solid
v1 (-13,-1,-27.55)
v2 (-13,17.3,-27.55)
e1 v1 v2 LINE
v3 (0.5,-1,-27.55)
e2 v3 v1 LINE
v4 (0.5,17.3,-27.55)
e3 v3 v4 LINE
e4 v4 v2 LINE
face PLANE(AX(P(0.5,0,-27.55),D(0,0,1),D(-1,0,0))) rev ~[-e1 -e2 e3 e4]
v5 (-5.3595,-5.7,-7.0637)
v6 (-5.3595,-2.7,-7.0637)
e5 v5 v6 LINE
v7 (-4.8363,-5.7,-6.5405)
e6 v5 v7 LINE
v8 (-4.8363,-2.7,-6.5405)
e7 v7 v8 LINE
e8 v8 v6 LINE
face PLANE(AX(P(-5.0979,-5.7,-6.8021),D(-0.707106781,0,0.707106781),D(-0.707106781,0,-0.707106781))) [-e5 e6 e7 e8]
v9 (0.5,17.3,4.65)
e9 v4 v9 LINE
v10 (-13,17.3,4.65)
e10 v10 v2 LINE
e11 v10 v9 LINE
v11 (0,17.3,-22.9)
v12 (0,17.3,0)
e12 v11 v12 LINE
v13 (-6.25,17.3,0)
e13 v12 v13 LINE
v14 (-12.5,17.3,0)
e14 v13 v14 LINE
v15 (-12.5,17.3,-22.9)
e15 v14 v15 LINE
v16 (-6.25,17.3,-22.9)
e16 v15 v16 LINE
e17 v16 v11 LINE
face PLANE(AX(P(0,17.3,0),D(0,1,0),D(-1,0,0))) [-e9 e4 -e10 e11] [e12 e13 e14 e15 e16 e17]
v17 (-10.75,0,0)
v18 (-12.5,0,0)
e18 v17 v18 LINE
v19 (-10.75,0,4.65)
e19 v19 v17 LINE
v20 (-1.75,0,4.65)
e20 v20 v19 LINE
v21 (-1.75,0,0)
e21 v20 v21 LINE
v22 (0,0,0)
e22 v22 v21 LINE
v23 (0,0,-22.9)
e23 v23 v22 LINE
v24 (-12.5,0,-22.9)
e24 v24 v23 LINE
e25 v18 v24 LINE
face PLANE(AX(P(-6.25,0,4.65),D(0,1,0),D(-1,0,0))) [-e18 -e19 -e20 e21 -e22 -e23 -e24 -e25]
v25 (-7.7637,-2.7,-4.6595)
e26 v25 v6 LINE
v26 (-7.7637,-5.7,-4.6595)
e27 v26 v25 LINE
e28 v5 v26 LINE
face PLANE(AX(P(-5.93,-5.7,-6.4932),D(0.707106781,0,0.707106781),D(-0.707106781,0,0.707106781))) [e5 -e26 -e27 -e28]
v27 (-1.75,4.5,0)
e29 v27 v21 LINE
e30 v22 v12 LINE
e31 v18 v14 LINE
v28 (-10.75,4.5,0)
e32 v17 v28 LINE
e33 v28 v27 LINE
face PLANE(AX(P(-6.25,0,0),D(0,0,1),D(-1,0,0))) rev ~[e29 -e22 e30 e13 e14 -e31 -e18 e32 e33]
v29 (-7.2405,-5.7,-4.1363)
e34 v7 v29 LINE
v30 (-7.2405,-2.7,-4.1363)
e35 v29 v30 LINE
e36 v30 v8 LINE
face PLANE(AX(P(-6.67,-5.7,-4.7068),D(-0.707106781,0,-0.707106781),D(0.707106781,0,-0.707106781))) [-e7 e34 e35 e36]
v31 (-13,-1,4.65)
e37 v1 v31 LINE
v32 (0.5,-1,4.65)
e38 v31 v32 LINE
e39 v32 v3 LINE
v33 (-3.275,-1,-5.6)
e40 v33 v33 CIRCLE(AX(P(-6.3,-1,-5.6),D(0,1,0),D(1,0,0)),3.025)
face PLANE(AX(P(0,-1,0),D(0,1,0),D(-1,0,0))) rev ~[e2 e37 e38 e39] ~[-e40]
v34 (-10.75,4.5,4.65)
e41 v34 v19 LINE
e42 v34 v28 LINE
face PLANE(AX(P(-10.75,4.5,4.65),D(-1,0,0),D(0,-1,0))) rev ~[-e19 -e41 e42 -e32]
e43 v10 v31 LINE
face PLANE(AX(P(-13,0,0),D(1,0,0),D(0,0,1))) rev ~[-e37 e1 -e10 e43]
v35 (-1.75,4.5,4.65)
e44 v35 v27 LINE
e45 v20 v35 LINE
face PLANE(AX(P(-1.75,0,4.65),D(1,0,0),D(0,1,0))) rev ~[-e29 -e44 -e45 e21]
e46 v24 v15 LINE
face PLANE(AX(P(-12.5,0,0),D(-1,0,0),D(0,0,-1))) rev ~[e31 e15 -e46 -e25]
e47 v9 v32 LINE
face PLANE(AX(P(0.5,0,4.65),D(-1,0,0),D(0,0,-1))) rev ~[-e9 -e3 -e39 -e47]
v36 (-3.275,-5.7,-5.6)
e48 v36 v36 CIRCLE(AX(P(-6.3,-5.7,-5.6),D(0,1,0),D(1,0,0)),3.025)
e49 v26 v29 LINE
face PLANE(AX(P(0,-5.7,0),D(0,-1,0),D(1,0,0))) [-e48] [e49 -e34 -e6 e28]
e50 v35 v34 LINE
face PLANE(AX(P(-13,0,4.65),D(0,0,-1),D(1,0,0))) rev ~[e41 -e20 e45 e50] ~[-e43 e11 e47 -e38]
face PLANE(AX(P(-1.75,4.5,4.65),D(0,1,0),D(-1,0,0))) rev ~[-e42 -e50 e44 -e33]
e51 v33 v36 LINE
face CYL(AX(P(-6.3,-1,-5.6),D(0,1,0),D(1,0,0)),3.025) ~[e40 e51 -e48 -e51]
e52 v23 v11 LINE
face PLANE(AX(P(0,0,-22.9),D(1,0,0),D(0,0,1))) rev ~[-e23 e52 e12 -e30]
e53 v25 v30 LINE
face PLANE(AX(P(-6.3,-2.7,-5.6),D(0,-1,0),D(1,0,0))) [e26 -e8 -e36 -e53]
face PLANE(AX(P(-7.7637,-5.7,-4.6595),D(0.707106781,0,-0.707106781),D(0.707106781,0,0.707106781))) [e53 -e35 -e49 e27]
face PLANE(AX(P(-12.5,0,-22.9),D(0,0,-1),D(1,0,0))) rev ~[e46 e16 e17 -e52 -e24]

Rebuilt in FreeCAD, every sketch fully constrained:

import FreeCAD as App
import Part
import Sketcher
from FreeCAD import Vector
Q = App.Units.Quantity

doc = App.newDocument("Part")
body = doc.addObject("PartDesign::Body", "Body")

# Sketch on XZ plane
sketch1 = doc.addObject("Sketcher::SketchObject", "Sketch")
body.addObject(sketch1)
sketch1.AttachmentSupport = (doc.XZ_Plane, [""])
sketch1.MapMode = "FlatFace"
sketch1.addGeometry(Part.LineSegment(Vector(0, 5, 0), Vector(0, -28, 0)), False)
sketch1.addGeometry(Part.LineSegment(Vector(0, -28, 0), Vector(-13, -28, 0)), False)
sketch1.addGeometry(Part.LineSegment(Vector(-13, -28, 0), Vector(-13, 5, 0)), False)
sketch1.addGeometry(Part.LineSegment(Vector(-13, 5, 0), Vector(0, 5, 0)), False)
sketch1.addGeometry(Part.LineSegment(Vector(0, -23, 0), Vector(0, 0, 0)), False)
sketch1.addGeometry(Part.LineSegment(Vector(0, 0, 0), Vector(-6, 0, 0)), False)
sketch1.addGeometry(Part.LineSegment(Vector(-6, 0, 0), Vector(-12, 0, 0)), False)
sketch1.addGeometry(Part.LineSegment(Vector(-12, 0, 0), Vector(-12, -23, 0)), False)
sketch1.addGeometry(Part.LineSegment(Vector(-12, -23, 0), Vector(-6, -23, 0)), False)
sketch1.addGeometry(Part.LineSegment(Vector(-6, -23, 0), Vector(0, -23, 0)), False)
sketch1.addConstraint(Sketcher.Constraint("Coincident", 0, 2, 1, 1))
sketch1.addConstraint(Sketcher.Constraint("Coincident", 1, 2, 2, 1))
sketch1.addConstraint(Sketcher.Constraint("Coincident", 2, 2, 3, 1))
sketch1.addConstraint(Sketcher.Constraint("Coincident", 3, 2, 0, 1))
sketch1.addConstraint(Sketcher.Constraint("Coincident", 4, 2, 5, 1))
sketch1.addConstraint(Sketcher.Constraint("Coincident", 5, 2, 6, 1))
sketch1.addConstraint(Sketcher.Constraint("Coincident", 6, 2, 7, 1))
sketch1.addConstraint(Sketcher.Constraint("Coincident", 7, 2, 8, 1))
sketch1.addConstraint(Sketcher.Constraint("Coincident", 8, 2, 9, 1))
sketch1.addConstraint(Sketcher.Constraint("Coincident", 9, 2, 4, 1))
sketch1.addConstraint(Sketcher.Constraint("Vertical", 0))
sketch1.addConstraint(Sketcher.Constraint("Horizontal", 1))
sketch1.addConstraint(Sketcher.Constraint("Vertical", 2))
sketch1.addConstraint(Sketcher.Constraint("Horizontal", 3))
sketch1.addConstraint(Sketcher.Constraint("Vertical", 4))
sketch1.addConstraint(Sketcher.Constraint("Horizontal", 5))
sketch1.addConstraint(Sketcher.Constraint("Horizontal", 6))
sketch1.addConstraint(Sketcher.Constraint("Vertical", 7))
sketch1.addConstraint(Sketcher.Constraint("Horizontal", 8))
sketch1.addConstraint(Sketcher.Constraint("Horizontal", 9))
sketch1.addConstraint(Sketcher.Constraint("Coincident", 4, 2, -1, 1))
sketch1.addConstraint(Sketcher.Constraint("Vertical", 5, 2, 8, 2))
sketch1.addConstraint(Sketcher.Constraint("Equal", 5, 6))
sketch1.addConstraint(Sketcher.Constraint("DistanceY", 4, 1, 4, 2, Q("22.9 mm")))
sketch1.addConstraint(Sketcher.Constraint("DistanceX", -1, 1, 0, 2, Q("0.5 mm")))
sketch1.addConstraint(Sketcher.Constraint("DistanceX", 6, 2, -1, 1, Q("12.5 mm")))
sketch1.addConstraint(Sketcher.Constraint("DistanceX", 2, 2, 6, 2, Q("0.5 mm")))
sketch1.addConstraint(Sketcher.Constraint("DistanceY", -1, 1, 2, 2, Q("4.65 mm")))
sketch1.addConstraint(Sketcher.Constraint("DistanceY", 1, 2, 7, 2, Q("4.65 mm")))
pad1 = doc.addObject("PartDesign::Pad", "Pad")
body.addObject(pad1)
pad1.Profile = sketch1
pad1.Length = 17.3
pad1.Reversed = True

# Sketch on XZ plane
sketch2 = doc.addObject("Sketcher::SketchObject", "Sketch001")
body.addObject(sketch2)
sketch2.AttachmentSupport = (doc.XZ_Plane, [""])
sketch2.MapMode = "FlatFace"
sketch2.addGeometry(Part.LineSegment(Vector(0, 5, 0), Vector(0, -28, 0)), False)
sketch2.addGeometry(Part.LineSegment(Vector(0, -28, 0), Vector(-13, -28, 0)), False)
sketch2.addGeometry(Part.LineSegment(Vector(-13, -28, 0), Vector(-13, 5, 0)), False)
sketch2.addGeometry(Part.LineSegment(Vector(-13, 5, 0), Vector(0, 5, 0)), False)
sketch2.addConstraint(Sketcher.Constraint("Coincident", 0, 2, 1, 1))
sketch2.addConstraint(Sketcher.Constraint("Coincident", 1, 2, 2, 1))
sketch2.addConstraint(Sketcher.Constraint("Coincident", 2, 2, 3, 1))
sketch2.addConstraint(Sketcher.Constraint("Coincident", 3, 2, 0, 1))
sketch2.addConstraint(Sketcher.Constraint("Vertical", 0))
sketch2.addConstraint(Sketcher.Constraint("Horizontal", 1))
sketch2.addConstraint(Sketcher.Constraint("Vertical", 2))
sketch2.addConstraint(Sketcher.Constraint("Horizontal", 3))
sketch2.addConstraint(Sketcher.Constraint("DistanceX", -1, 1, 0, 2, Q("0.5 mm")))
sketch2.addConstraint(Sketcher.Constraint("DistanceY", -1, 1, 2, 2, Q("4.65 mm")))
sketch2.addConstraint(Sketcher.Constraint("DistanceX", 1, 2, 1, 1, Q("13.5 mm")))
sketch2.addConstraint(Sketcher.Constraint("DistanceY", 0, 2, 0, 1, Q("32.2 mm")))
pad2 = doc.addObject("PartDesign::Pad", "Pad001")
body.addObject(pad2)
pad2.Profile = sketch2
pad2.Length = 1

# Sketch on XZ plane
sketch3 = doc.addObject("Sketcher::SketchObject", "Sketch002")
body.addObject(sketch3)
sketch3.AttachmentSupport = (doc.XZ_Plane, [""])
sketch3.MapMode = "FlatFace"
sketch3.AttachmentOffset = App.Placement(Vector(0, 0, 1), App.Rotation())
sketch3.addGeometry(Part.Circle(Vector(-6.3, -5.6, 0), Vector(0, 0, 1), 3), False)
sketch3.addConstraint(Sketcher.Constraint("Diameter", 0, Q("6.05 mm")))
sketch3.addConstraint(Sketcher.Constraint("DistanceY", 0, 3, -1, 1, Q("5.6 mm")))
sketch3.addConstraint(Sketcher.Constraint("DistanceX", 0, 3, -1, 1, Q("6.3 mm")))
pad3 = doc.addObject("PartDesign::Pad", "Pad002")
body.addObject(pad3)
pad3.Profile = sketch3
pad3.Length = 4.7

# Sketch on XY plane
sketch4 = doc.addObject("Sketcher::SketchObject", "Sketch003")
body.addObject(sketch4)
sketch4.AttachmentSupport = (doc.XY_Plane, [""])
sketch4.MapMode = "FlatFace"
sketch4.AttachmentOffset = App.Placement(Vector(0, 0, 4.65), App.Rotation())
sketch4.addGeometry(Part.LineSegment(Vector(-10.8, 0, 0), Vector(-1.8, 0, 0)), False)
sketch4.addGeometry(Part.LineSegment(Vector(-1.8, 0, 0), Vector(-1.8, 4.5, 0)), False)
sketch4.addGeometry(Part.LineSegment(Vector(-1.8, 4.5, 0), Vector(-10.8, 4.5, 0)), False)
sketch4.addGeometry(Part.LineSegment(Vector(-10.8, 4.5, 0), Vector(-10.8, 0, 0)), False)
sketch4.addConstraint(Sketcher.Constraint("Coincident", 0, 2, 1, 1))
sketch4.addConstraint(Sketcher.Constraint("Coincident", 1, 2, 2, 1))
sketch4.addConstraint(Sketcher.Constraint("Coincident", 2, 2, 3, 1))
sketch4.addConstraint(Sketcher.Constraint("Coincident", 3, 2, 0, 1))
sketch4.addConstraint(Sketcher.Constraint("Horizontal", 0))
sketch4.addConstraint(Sketcher.Constraint("Vertical", 1))
sketch4.addConstraint(Sketcher.Constraint("Horizontal", 2))
sketch4.addConstraint(Sketcher.Constraint("Vertical", 3))
sketch4.addConstraint(Sketcher.Constraint("PointOnObject", 0, 2, -1))
sketch4.addConstraint(Sketcher.Constraint("DistanceX", 0, 1, 0, 2, Q("9 mm")))
sketch4.addConstraint(Sketcher.Constraint("DistanceY", 1, 1, 1, 2, Q("4.5 mm")))
sketch4.addConstraint(Sketcher.Constraint("DistanceX", 0, 2, -1, 1, Q("1.75 mm")))
pocket1 = doc.addObject("PartDesign::Pocket", "Pocket")
body.addObject(pocket1)
pocket1.Profile = sketch4
pocket1.Type = "UpToFirst"

# Sketch on XZ plane
sketch5 = doc.addObject("Sketcher::SketchObject", "Sketch004")
body.addObject(sketch5)
sketch5.AttachmentSupport = (doc.XZ_Plane, [""])
sketch5.MapMode = "FlatFace"
sketch5.AttachmentOffset = App.Placement(Vector(0, 0, 5.7), App.Rotation())
sketch5.addGeometry(Part.LineSegment(Vector(-5.4, -7.1, 0), Vector(-4.8, -6.5, 0)), False)
sketch5.addGeometry(Part.LineSegment(Vector(-4.8, -6.5, 0), Vector(-7.2, -4.1, 0)), False)
sketch5.addGeometry(Part.LineSegment(Vector(-7.2, -4.1, 0), Vector(-7.8, -4.7, 0)), False)
sketch5.addGeometry(Part.LineSegment(Vector(-7.8, -4.7, 0), Vector(-5.4, -7.1, 0)), False)
sketch5.addConstraint(Sketcher.Constraint("Coincident", 0, 2, 1, 1))
sketch5.addConstraint(Sketcher.Constraint("Coincident", 1, 2, 2, 1))
sketch5.addConstraint(Sketcher.Constraint("Coincident", 2, 2, 3, 1))
sketch5.addConstraint(Sketcher.Constraint("Coincident", 3, 2, 0, 1))
sketch5.addConstraint(Sketcher.Constraint("Perpendicular", 0, 1))
sketch5.addConstraint(Sketcher.Constraint("Perpendicular", 1, 2))
sketch5.addConstraint(Sketcher.Constraint("Perpendicular", 2, 3))
sketch5.addConstraint(Sketcher.Constraint("Distance", 1, Q("3.4 mm")))
sketch5.addConstraint(Sketcher.Constraint("Distance", 0, Q("0.74 mm")))
sketch5.addConstraint(Sketcher.Constraint("Angle", 0, Q("45 deg")))
sketch5.addConstraint(Sketcher.Constraint("DistanceX", 0, 2, -1, 1, Q("4.8363 mm")))
sketch5.addConstraint(Sketcher.Constraint("DistanceY", 0, 2, -1, 1, Q("6.5405 mm")))
pocket2 = doc.addObject("PartDesign::Pocket", "Pocket001")
body.addObject(pocket2)
pocket2.Profile = sketch5
pocket2.Length = 3

doc.recompute()
